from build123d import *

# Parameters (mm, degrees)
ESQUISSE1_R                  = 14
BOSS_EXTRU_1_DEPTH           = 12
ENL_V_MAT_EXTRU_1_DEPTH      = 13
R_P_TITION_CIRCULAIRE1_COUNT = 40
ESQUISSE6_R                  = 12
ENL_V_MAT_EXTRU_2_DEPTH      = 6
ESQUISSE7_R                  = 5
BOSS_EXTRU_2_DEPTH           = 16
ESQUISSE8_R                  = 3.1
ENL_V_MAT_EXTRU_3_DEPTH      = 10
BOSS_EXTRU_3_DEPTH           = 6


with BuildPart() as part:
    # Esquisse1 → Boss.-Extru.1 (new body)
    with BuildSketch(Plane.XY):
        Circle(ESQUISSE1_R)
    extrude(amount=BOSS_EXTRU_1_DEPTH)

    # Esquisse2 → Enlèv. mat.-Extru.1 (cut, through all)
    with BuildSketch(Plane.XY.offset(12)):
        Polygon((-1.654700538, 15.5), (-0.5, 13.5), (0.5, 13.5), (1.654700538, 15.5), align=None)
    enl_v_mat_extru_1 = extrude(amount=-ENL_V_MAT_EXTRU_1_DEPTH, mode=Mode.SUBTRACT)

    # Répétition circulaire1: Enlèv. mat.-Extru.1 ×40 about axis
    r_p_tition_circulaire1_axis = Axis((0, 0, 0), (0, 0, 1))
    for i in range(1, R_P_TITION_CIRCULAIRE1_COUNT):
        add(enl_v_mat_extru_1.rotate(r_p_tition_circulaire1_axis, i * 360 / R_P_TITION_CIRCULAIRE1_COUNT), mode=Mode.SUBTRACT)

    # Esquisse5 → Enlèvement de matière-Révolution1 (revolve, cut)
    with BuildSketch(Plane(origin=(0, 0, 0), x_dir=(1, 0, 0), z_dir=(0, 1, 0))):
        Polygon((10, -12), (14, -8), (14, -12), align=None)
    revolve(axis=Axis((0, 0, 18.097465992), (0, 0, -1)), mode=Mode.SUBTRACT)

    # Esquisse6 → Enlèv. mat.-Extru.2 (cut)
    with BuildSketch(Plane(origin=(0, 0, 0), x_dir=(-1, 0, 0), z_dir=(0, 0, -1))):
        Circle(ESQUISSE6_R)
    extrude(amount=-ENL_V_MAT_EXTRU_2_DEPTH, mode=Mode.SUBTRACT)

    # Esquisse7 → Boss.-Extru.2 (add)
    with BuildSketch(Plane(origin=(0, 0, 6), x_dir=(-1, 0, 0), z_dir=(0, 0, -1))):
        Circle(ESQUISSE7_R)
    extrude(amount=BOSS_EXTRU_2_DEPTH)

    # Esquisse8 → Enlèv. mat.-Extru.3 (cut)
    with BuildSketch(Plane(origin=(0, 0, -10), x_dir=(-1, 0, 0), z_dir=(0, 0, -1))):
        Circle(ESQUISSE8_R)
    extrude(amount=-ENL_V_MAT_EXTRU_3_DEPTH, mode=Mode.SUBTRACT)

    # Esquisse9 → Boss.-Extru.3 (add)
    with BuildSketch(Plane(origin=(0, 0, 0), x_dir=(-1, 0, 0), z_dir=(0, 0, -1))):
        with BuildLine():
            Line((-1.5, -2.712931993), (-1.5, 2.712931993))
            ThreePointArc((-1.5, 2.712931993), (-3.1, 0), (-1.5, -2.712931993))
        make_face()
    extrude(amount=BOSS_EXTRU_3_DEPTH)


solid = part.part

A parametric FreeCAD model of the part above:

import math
import FreeCAD as App
import Part
import Sketcher

V = App.Vector
Q = App.Units.Quantity


def add_polygon(sketch, points):
    """Adds a closed chain of lines whose ends are joined by coincident constraints."""
    first, n = sketch.GeometryCount, len(points)
    for a, b in zip(points, points[1:] + points[:1]):
        sketch.addGeometry(Part.LineSegment(App.Vector(*a, 0), App.Vector(*b, 0)), False)
    for i in range(n):
        sketch.addConstraint(Sketcher.Constraint("Coincident", first + i, 2, first + (i + 1) % n, 1))

doc = App.newDocument("Part")
params = doc.addObject("Spreadsheet::Sheet", "Params")
for row, (alias, value) in enumerate([
    ("sketch1_diameter", "28 mm"),
    ("pad1_length", "12 mm"),
    ("sketch2_width", "1 mm"),
    ("sketch3_width", "4 mm"),
    ("groove_angle", "360 deg"),
    ("sketch4_diameter", "24 mm"),
    ("pocket2_length", "6 mm"),
    ("sketch5_diameter", "10 mm"),
    ("pad2_length", "16 mm"),
    ("sketch6_diameter", "6.2 mm"),
    ("pocket3_length", "10 mm"),
    ("sketch7_radius", "3.1 mm"),
    ("pad3_length", "6 mm"),
], start=1):
    params.set(f"A{row}", alias)
    params.set(f"B{row}", "=" + value)
    params.setAlias(f"B{row}", alias)

body = doc.addObject("PartDesign::Body", "Body")

# Sketch on XY plane
sketch1 = doc.addObject("Sketcher::SketchObject", "Sketch")
body.addObject(sketch1)
sketch1.AttachmentSupport = (doc.XY_Plane, [""])
sketch1.MapMode = "FlatFace"
sketch1.addGeometry(Part.Circle(V(0, 0, 0), V(0, 0, 1), 14), False)
sketch1.addConstraint(Sketcher.Constraint("Coincident", 0, 3, -1, 1))
sketch1.addConstraint(Sketcher.Constraint("Diameter", 0, Q("28 mm")))
sketch1.setExpression("Constraints[1]", "Params.sketch1_diameter")
pad1 = doc.addObject("PartDesign::Pad", "Pad")
body.addObject(pad1)
pad1.Profile = sketch1
pad1.setExpression("Length", "Params.pad1_length")

# Sketch on XY plane
sketch2 = doc.addObject("Sketcher::SketchObject", "Sketch001")
body.addObject(sketch2)
sketch2.AttachmentSupport = (doc.XY_Plane, [""])
sketch2.MapMode = "FlatFace"
sketch2.AttachmentOffset = App.Placement(V(0, 0, 12), App.Rotation())
add_polygon(sketch2, [(-1.654701, 15.5), (-0.5, 13.5), (0.5, 13.5), (1.654701, 15.5)])  # lines 0-3
sketch2.addConstraint(Sketcher.Constraint("Horizontal", 1))
sketch2.addConstraint(Sketcher.Constraint("Horizontal", 3))
sketch2.addConstraint(Sketcher.Constraint("Equal", 0, 2))
sketch2.addConstraint(Sketcher.Constraint("DistanceX", 1, 1, 1, 2, Q("1 mm")))
sketch2.addConstraint(Sketcher.Constraint("Angle", 0, Q("-60 deg")))
sketch2.addConstraint(Sketcher.Constraint("DistanceY", 1, 2, 2, 2, Q("2 mm")))
sketch2.addConstraint(Sketcher.Constraint("DistanceX", 0, 2, -1, 1, Q("0.5 mm")))
sketch2.addConstraint(Sketcher.Constraint("DistanceY", -1, 1, 0, 2, Q("13.5 mm")))
sketch2.setExpression("Constraints[7]", "Params.sketch2_width")
pocket1 = doc.addObject("PartDesign::Pocket", "Pocket")
body.addObject(pocket1)
pocket1.Profile = sketch2
pocket1.Type = "ThroughAll"
doc.recompute()

polarpattern = doc.addObject("PartDesign::PolarPattern", "PolarPattern")
body.addObject(polarpattern)
polarpattern.Originals = [pocket1]
polarpattern.Axis = (doc.Z_Axis, [""])
polarpattern.Angle = 360
polarpattern.Occurrences = 40
body.Tip = polarpattern

# Sketch on XZ plane
sketch3 = doc.addObject("Sketcher::SketchObject", "Sketch002")
body.addObject(sketch3)
sketch3.AttachmentSupport = (doc.XZ_Plane, [""])
sketch3.MapMode = "FlatFace"
add_polygon(sketch3, [(14, 8), (10, 12), (14, 12)])  # lines 0-2
sketch3.addConstraint(Sketcher.Constraint("Horizontal", 1))
sketch3.addConstraint(Sketcher.Constraint("Vertical", 2))
sketch3.addConstraint(Sketcher.Constraint("Equal", 1, 2))
sketch3.addConstraint(Sketcher.Constraint("DistanceX", 1, 1, 1, 2, Q("4 mm")))
sketch3.addConstraint(Sketcher.Constraint("DistanceX", -1, 1, 0, 2, Q("10 mm")))
sketch3.addConstraint(Sketcher.Constraint("DistanceY", -1, 1, 0, 2, Q("12 mm")))
sketch3.setExpression("Constraints[6]", "Params.sketch3_width")
groove = doc.addObject("PartDesign::Groove", "Groove")
body.addObject(groove)
groove.Profile = sketch3
groove.ReferenceAxis = (sketch3, ["V_Axis"])
groove.setExpression("Angle", "Params.groove_angle")

# Sketch on XY plane
sketch4 = doc.addObject("Sketcher::SketchObject", "Sketch003")
body.addObject(sketch4)
sketch4.AttachmentSupport = (doc.XY_Plane, [""])
sketch4.MapMode = "FlatFace"
sketch4.addGeometry(Part.Circle(V(0, 0, 0), V(0, 0, 1), 12), False)
sketch4.addConstraint(Sketcher.Constraint("Coincident", 0, 3, -1, 1))
sketch4.addConstraint(Sketcher.Constraint("Diameter", 0, Q("24 mm")))
sketch4.setExpression("Constraints[1]", "Params.sketch4_diameter")
pocket2 = doc.addObject("PartDesign::Pocket", "Pocket001")
body.addObject(pocket2)
pocket2.Profile = sketch4
pocket2.setExpression("Length", "Params.pocket2_length")
pocket2.Reversed = True

# Sketch on XY plane
sketch5 = doc.addObject("Sketcher::SketchObject", "Sketch004")
body.addObject(sketch5)
sketch5.AttachmentSupport = (doc.XY_Plane, [""])
sketch5.MapMode = "FlatFace"
sketch5.AttachmentOffset = App.Placement(V(0, 0, 6), App.Rotation())
sketch5.addGeometry(Part.Circle(V(0, 0, 0), V(0, 0, 1), 5), False)
sketch5.addConstraint(Sketcher.Constraint("Coincident", 0, 3, -1, 1))
sketch5.addConstraint(Sketcher.Constraint("Diameter", 0, Q("10 mm")))
sketch5.setExpression("Constraints[1]", "Params.sketch5_diameter")
pad2 = doc.addObject("PartDesign::Pad", "Pad001")
body.addObject(pad2)
pad2.Profile = sketch5
pad2.setExpression("Length", "Params.pad2_length")
pad2.Reversed = True

# Sketch on XY plane
sketch6 = doc.addObject("Sketcher::SketchObject", "Sketch005")
body.addObject(sketch6)
sketch6.AttachmentSupport = (doc.XY_Plane, [""])
sketch6.MapMode = "FlatFace"
sketch6.AttachmentOffset = App.Placement(V(0, 0, -10), App.Rotation())
sketch6.addGeometry(Part.Circle(V(0, 0, 0), V(0, 0, 1), 3.1), False)
sketch6.addConstraint(Sketcher.Constraint("Coincident", 0, 3, -1, 1))
sketch6.addConstraint(Sketcher.Constraint("Diameter", 0, Q("6.2 mm")))
sketch6.setExpression("Constraints[1]", "Params.sketch6_diameter")
pocket3 = doc.addObject("PartDesign::Pocket", "Pocket002")
body.addObject(pocket3)
pocket3.Profile = sketch6
pocket3.setExpression("Length", "Params.pocket3_length")
pocket3.Reversed = True

# Sketch on XY plane
sketch7 = doc.addObject("Sketcher::SketchObject", "Sketch006")
body.addObject(sketch7)
sketch7.AttachmentSupport = (doc.XY_Plane, [""])
sketch7.MapMode = "FlatFace"
sketch7.addGeometry(Part.LineSegment(V(1.5, -2.712932, 0), V(1.5, 2.712932, 0)), False)
sketch7.addGeometry(Part.ArcOfCircle(Part.Circle(V(0, 0, 0), V(0, 0, 1), 3.1), math.radians(-61.061472), math.radians(61.061472)), False)
sketch7.addConstraint(Sketcher.Constraint("Coincident", 0, 1, 1, 1))
sketch7.addConstraint(Sketcher.Constraint("Coincident", 1, 2, 0, 2))
sketch7.addConstraint(Sketcher.Constraint("Vertical", 0))
sketch7.addConstraint(Sketcher.Constraint("Coincident", 1, 3, -1, 1))
sketch7.addConstraint(Sketcher.Constraint("Radius", 1, Q("3.1 mm")))
sketch7.addConstraint(Sketcher.Constraint("DistanceX", -1, 1, 0, 1, Q("1.5 mm")))
sketch7.setExpression("Constraints[4]", "Params.sketch7_radius")
pad3 = doc.addObject("PartDesign::Pad", "Pad002")
body.addObject(pad3)
pad3.Profile = sketch7
pad3.setExpression("Length", "Params.pad3_length")
pad3.Reversed = True

doc.recompute()
